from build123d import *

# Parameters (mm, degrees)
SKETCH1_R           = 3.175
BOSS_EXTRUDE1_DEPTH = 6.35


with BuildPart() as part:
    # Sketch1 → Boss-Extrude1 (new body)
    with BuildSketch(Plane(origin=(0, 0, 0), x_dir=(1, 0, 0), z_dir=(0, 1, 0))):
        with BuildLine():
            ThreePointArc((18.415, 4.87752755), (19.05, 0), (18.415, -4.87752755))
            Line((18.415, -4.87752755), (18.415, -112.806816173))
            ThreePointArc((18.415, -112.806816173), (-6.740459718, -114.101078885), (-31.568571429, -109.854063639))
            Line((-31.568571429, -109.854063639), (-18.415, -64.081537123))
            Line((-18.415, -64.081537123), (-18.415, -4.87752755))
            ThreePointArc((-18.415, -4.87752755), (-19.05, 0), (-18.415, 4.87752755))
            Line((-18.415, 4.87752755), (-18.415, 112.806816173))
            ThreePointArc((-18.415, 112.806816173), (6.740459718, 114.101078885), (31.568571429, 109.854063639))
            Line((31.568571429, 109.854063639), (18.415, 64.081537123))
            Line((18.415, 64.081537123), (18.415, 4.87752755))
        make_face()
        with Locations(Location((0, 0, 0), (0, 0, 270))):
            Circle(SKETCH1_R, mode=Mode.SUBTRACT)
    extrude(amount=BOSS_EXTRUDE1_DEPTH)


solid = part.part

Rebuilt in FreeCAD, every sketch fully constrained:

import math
import FreeCAD as App
import Part
import Sketcher

V = App.Vector
Q = App.Units.Quantity

doc = App.newDocument("Part")
params = doc.addObject("Spreadsheet::Sheet", "Params")
for row, (alias, value) in enumerate([
    ("sketch1_radius", "4.5 in"),
    ("sketch1_diameter", "0.25 in"),
    ("sketch1_radius2", "0.75 in"),
    ("sketch1_length", "1.875 in"),
    ("pad1_length", "0.25 in"),
], start=1):
    params.set(f"A{row}", alias)
    params.set(f"B{row}", "=" + value)
    params.setAlias(f"B{row}", alias)

body = doc.addObject("PartDesign::Body", "Body")

sketch1 = body.newObject("Sketcher::SketchObject", "Sketch")
sketch1.AttachmentSupport = (doc.getObject("XZ_Plane"), [""])
sketch1.MapMode = "FlatFace"
sketch1.addGeometry(Part.ArcOfCircle(Part.Circle(V(0, 0, 0), V(0, 0, 1), 19.1), math.radians(-15), math.radians(15)), False)
sketch1.addGeometry(Part.LineSegment(V(18.4, -4.9, 0), V(18.4, -64.1, 0)), False)
sketch1.addGeometry(Part.LineSegment(V(18.4, -64.1, 0), V(31.6, -109.9, 0)), False)
sketch1.addGeometry(Part.ArcOfCircle(Part.Circle(V(0, 0, 0), V(0, 0, 1), 114.3), math.radians(-99), math.radians(-74)), False)
sketch1.addGeometry(Part.LineSegment(V(-18.4, -112.8, 0), V(-18.4, -4.9, 0)), False)
sketch1.addGeometry(Part.ArcOfCircle(Part.Circle(V(0, 0, 0), V(0, 0, 1), 19.1), math.radians(165), math.radians(195)), False)
sketch1.addGeometry(Part.LineSegment(V(-18.4, 4.9, 0), V(-18.4, 64.1, 0)), False)
sketch1.addGeometry(Part.LineSegment(V(-18.4, 64.1, 0), V(-31.6, 109.9, 0)), False)
sketch1.addGeometry(Part.ArcOfCircle(Part.Circle(V(0, 0, 0), V(0, 0, 1), 114.3), math.radians(81), math.radians(106)), False)
sketch1.addGeometry(Part.LineSegment(V(18.4, 112.8, 0), V(18.4, 4.9, 0)), False)
sketch1.addGeometry(Part.Circle(V(0, 0, 0), V(0, 0, 1), 3.2), False)
sketch1.addConstraint(Sketcher.Constraint("Coincident", 0, 1, 1, 1))
sketch1.addConstraint(Sketcher.Constraint("Coincident", 1, 2, 2, 1))
sketch1.addConstraint(Sketcher.Constraint("Coincident", 2, 2, 3, 2))
sketch1.addConstraint(Sketcher.Constraint("Coincident", 3, 1, 4, 1))
sketch1.addConstraint(Sketcher.Constraint("Coincident", 4, 2, 5, 2))
sketch1.addConstraint(Sketcher.Constraint("Coincident", 5, 1, 6, 1))
sketch1.addConstraint(Sketcher.Constraint("Coincident", 6, 2, 7, 1))
sketch1.addConstraint(Sketcher.Constraint("Coincident", 7, 2, 8, 2))
sketch1.addConstraint(Sketcher.Constraint("Coincident", 8, 1, 9, 1))
sketch1.addConstraint(Sketcher.Constraint("Coincident", 9, 2, 0, 2))
sketch1.addConstraint(Sketcher.Constraint("Vertical", 1))
sketch1.addConstraint(Sketcher.Constraint("Vertical", 4))
sketch1.addConstraint(Sketcher.Constraint("Vertical", 6))
sketch1.addConstraint(Sketcher.Constraint("Vertical", 9))
sketch1.addConstraint(Sketcher.Constraint("Coincident", 0, 3, -1, 1))
sketch1.addConstraint(Sketcher.Constraint("Coincident", 3, 3, -1, 1))
sketch1.addConstraint(Sketcher.Constraint("Coincident", 5, 3, -1, 1))
sketch1.addConstraint(Sketcher.Constraint("Coincident", 8, 3, -1, 1))
sketch1.addConstraint(Sketcher.Constraint("Coincident", 10, 3, -1, 1))
sketch1.addConstraint(Sketcher.Constraint("Equal", 0, 5))
sketch1.addConstraint(Sketcher.Constraint("Equal", 3, 8))
sketch1.addConstraint(Sketcher.Constraint("Symmetric", 1, 2, 6, 2, -1, 1))
sketch1.addConstraint(Sketcher.Constraint("Parallel", 2, 7))
sketch1.addConstraint(Sketcher.Constraint("Horizontal", 0, 1, 4, 2))
sketch1.addConstraint(Sketcher.Constraint("Horizontal", 5, 1, 9, 2))
sketch1.addConstraint(Sketcher.Constraint("Radius", 3, Q("4.5 in")))
sketch1.addConstraint(Sketcher.Constraint("Diameter", 10, Q("0.25 in")))
sketch1.addConstraint(Sketcher.Constraint("Radius", 0, Q("0.75 in")))
sketch1.addConstraint(Sketcher.Constraint("DistanceX", 3, 1, 1, 2, Q("1.45 in")))
sketch1.addConstraint(Sketcher.Constraint("Distance", 2, Q("1.875 in")))
sketch1.addConstraint(Sketcher.Constraint("DistanceX", -1, 1, 2, 2, Q("31.568571 mm")))
sketch1.setExpression("Constraints[25]", "Params.sketch1_radius")
sketch1.setExpression("Constraints[26]", "Params.sketch1_diameter")
sketch1.setExpression("Constraints[27]", "Params.sketch1_radius2")
sketch1.setExpression("Constraints[29]", "Params.sketch1_length")
pad1 = body.newObject("PartDesign::Pad", "Pad")
pad1.Profile = sketch1
pad1.setExpression("Length", "Params.pad1_length")
pad1.Reversed = True

doc.recompute()
